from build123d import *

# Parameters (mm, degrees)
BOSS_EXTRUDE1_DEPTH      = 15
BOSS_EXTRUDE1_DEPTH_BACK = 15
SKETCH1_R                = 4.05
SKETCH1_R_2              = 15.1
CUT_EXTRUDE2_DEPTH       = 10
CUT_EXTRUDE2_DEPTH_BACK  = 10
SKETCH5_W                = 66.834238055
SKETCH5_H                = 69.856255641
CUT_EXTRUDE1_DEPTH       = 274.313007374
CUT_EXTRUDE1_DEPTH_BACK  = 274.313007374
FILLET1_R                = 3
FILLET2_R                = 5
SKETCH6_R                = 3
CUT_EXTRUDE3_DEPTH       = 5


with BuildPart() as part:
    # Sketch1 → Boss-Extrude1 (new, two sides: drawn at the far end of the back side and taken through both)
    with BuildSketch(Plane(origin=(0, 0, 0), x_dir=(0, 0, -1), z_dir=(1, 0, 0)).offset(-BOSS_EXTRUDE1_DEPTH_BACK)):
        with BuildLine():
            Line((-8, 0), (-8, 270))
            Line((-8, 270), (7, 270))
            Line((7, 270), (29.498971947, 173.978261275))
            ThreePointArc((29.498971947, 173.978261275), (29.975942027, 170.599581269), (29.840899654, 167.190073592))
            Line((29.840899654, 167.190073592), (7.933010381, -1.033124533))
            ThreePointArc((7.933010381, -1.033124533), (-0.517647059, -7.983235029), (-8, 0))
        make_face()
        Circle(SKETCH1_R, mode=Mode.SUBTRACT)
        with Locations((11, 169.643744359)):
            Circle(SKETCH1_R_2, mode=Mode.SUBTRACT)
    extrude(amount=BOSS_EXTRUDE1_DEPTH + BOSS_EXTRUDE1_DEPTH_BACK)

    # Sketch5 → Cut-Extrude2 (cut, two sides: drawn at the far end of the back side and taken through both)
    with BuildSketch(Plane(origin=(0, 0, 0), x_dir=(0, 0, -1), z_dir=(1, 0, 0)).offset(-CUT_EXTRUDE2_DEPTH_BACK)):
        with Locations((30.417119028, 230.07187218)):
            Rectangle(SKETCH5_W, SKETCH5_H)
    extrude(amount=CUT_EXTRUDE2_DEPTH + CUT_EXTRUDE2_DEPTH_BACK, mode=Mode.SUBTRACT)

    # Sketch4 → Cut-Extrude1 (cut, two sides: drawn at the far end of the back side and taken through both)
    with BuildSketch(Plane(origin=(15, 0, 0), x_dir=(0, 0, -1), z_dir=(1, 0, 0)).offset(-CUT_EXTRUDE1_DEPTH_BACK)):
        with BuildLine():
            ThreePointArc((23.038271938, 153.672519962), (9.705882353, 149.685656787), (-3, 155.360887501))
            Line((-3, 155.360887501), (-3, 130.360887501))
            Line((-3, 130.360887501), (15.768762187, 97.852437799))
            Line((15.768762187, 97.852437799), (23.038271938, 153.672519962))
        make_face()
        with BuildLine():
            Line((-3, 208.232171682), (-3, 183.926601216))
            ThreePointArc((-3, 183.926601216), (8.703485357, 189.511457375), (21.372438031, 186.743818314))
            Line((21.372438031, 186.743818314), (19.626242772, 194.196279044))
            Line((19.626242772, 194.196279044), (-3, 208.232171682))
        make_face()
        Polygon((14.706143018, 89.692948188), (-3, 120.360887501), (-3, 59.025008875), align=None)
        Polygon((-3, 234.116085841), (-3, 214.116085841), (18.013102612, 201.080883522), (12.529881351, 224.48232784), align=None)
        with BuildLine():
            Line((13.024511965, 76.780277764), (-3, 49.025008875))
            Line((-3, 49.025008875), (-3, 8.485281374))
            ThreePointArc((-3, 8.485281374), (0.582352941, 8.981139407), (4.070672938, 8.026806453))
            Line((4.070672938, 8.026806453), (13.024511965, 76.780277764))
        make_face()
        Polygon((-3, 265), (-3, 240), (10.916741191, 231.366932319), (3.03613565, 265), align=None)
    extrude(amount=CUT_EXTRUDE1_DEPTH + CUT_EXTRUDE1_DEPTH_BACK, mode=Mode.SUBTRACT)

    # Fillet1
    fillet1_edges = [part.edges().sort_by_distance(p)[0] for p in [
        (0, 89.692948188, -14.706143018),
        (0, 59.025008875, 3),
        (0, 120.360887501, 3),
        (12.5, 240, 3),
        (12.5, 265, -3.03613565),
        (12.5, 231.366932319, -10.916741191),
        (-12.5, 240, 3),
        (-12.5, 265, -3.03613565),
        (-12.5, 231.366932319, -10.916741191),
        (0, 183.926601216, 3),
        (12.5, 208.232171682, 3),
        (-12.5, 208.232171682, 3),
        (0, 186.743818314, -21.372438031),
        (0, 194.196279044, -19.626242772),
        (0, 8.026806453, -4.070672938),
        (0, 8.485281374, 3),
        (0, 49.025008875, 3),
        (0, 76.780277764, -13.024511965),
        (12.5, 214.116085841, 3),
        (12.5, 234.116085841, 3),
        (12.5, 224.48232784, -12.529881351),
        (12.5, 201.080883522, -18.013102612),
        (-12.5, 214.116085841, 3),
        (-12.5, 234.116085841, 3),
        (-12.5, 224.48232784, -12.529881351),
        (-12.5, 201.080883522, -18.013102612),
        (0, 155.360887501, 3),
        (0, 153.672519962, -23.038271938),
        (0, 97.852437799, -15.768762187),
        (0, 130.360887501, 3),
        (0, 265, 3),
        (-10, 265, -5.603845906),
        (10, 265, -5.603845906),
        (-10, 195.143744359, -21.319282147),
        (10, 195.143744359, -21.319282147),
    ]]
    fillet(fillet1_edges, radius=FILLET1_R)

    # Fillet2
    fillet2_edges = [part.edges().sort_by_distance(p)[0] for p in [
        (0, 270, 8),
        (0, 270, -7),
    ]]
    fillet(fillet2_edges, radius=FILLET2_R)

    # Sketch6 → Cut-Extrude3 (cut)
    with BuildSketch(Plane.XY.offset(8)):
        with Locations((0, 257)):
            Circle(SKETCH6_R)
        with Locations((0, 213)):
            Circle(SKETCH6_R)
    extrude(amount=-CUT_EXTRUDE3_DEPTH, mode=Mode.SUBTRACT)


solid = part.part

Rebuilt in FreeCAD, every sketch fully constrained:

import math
import FreeCAD as App
import Part
import Sketcher
from FreeCAD import Vector
Q = App.Units.Quantity


def edges_at(feature, points):
    """Names of the edges that pass closest to the given points."""
    edges = feature.Shape.Edges
    near = lambda p: min(range(len(edges)), key=lambda i: edges[i].distToShape(Part.Vertex(*p))[0])
    return sorted({f"Edge{near(p) + 1}" for p in points})

doc = App.newDocument("Part")
body = doc.addObject("PartDesign::Body", "Body")

# Sketch on YZ plane
sketch1 = body.newObject("Sketcher::SketchObject", "Sketch")
sketch1.AttachmentSupport = (doc.getObject("YZ_Plane"), [""])
sketch1.MapMode = "FlatFace"
sketch1.addGeometry([
    Part.LineSegment(Vector(270, 8, 0), Vector(0, 8, 0)),  # 0
    Part.ArcOfCircle(Part.Circle(Vector(0, 0, 0), Vector(0, 0, 1), 8), math.radians(90), math.radians(262.580068)),  # 1
    Part.LineSegment(Vector(-1.033125, -7.93301, 0), Vector(167.190074, -29.8409, 0)),  # 2
    Part.ArcOfCircle(Part.Circle(Vector(169.643744, -11, 0), Vector(0, 0, 1), 19), math.radians(-97.419932), math.radians(-76.812853)),  # 3
    Part.LineSegment(Vector(173.978261, -29.498972, 0), Vector(270, -7, 0)),  # 4
    Part.LineSegment(Vector(270, -7, 0), Vector(270, 8, 0)),  # 5
    Part.Circle(Vector(0, 0, 0), Vector(0, 0, 1), 4.05),  # 6
    Part.Circle(Vector(169.643744, -11, 0), Vector(0, 0, 1), 15.1),  # 7
], False)
sketch1.addConstraint([
    Sketcher.Constraint("Tangent", 0, 2, 1, 1),
    Sketcher.Constraint("Tangent", 1, 2, 2, 1),
    Sketcher.Constraint("Tangent", 2, 2, 3, 1),
    Sketcher.Constraint("Tangent", 3, 2, 4, 1),
    Sketcher.Constraint("Coincident", 4, 2, 5, 1),
    Sketcher.Constraint("Coincident", 5, 2, 0, 1),
    Sketcher.Constraint("Horizontal", 0),
    Sketcher.Constraint("Vertical", 5),
    Sketcher.Constraint("Coincident", 1, 3, -1, 1),
    Sketcher.Constraint("Coincident", 6, 3, -1, 1),
    Sketcher.Constraint("Coincident", 7, 3, 3, 3),
    Sketcher.Constraint("Radius", 1, Q("8 mm")),
    Sketcher.Constraint("Radius", 3, Q("19 mm")),
    Sketcher.Constraint("Diameter", 6, Q("8.1 mm")),
    Sketcher.Constraint("Diameter", 7, Q("30.2 mm")),
    Sketcher.Constraint("DistanceX", 0, 2, 0, 1, Q("270 mm")),
    Sketcher.Constraint("DistanceY", 5, 1, 5, 2, Q("15 mm")),
    Sketcher.Constraint("DistanceY", 3, 3, -1, 1, Q("11 mm")),
    Sketcher.Constraint("Distance", 4, Q("98.622401 mm")),
])
pad1 = body.newObject("PartDesign::Pad", "Pad")
pad1.Profile = sketch1
pad1.Type = "TwoLengths"
pad1.Length = 15
pad1.Length2 = 15

# Sketch on YZ plane
sketch2 = body.newObject("Sketcher::SketchObject", "Sketch001")
sketch2.AttachmentSupport = (doc.getObject("YZ_Plane"), [""])
sketch2.MapMode = "FlatFace"
sketch2.addGeometry([
    Part.LineSegment(Vector(265, 3, 0), Vector(195.143744, 3, 0)),
    Part.LineSegment(Vector(195.143744, 3, 0), Vector(195.143744, -63.834238, 0)),
    Part.LineSegment(Vector(195.143744, -63.834238, 0), Vector(265, -63.834238, 0)),
    Part.LineSegment(Vector(265, -63.834238, 0), Vector(265, 3, 0)),
], False)
sketch2.addConstraint([
    Sketcher.Constraint("Coincident", 0, 2, 1, 1),
    Sketcher.Constraint("Coincident", 1, 2, 2, 1),
    Sketcher.Constraint("Coincident", 2, 2, 3, 1),
    Sketcher.Constraint("Coincident", 3, 2, 0, 1),
    Sketcher.Constraint("Horizontal", 0),
    Sketcher.Constraint("Vertical", 1),
    Sketcher.Constraint("Horizontal", 2),
    Sketcher.Constraint("Vertical", 3),
    Sketcher.Constraint("DistanceY", -1, 1, 0, 2, Q("3 mm")),
    Sketcher.Constraint("DistanceX", -1, 1, 2, 2, Q("265 mm")),
    Sketcher.Constraint("DistanceY", 1, 2, 1, 1, Q("66.834238 mm")),
    Sketcher.Constraint("DistanceX", 0, 2, 0, 1, Q("69.856256 mm")),
])
pocket1 = body.newObject("PartDesign::Pocket", "Pocket")
pocket1.Profile = sketch2
pocket1.Type = "TwoLengths"
pocket1.Length = 10
pocket1.Length2 = 10
pocket1.Reversed = True

# Sketch on YZ plane
sketch3 = body.newObject("Sketcher::SketchObject", "Sketch002")
sketch3.AttachmentSupport = (doc.getObject("YZ_Plane"), [""])
sketch3.MapMode = "FlatFace"
sketch3.AttachmentOffset = App.Placement(Vector(0, 0, 15), App.Rotation())
sketch3.addGeometry([
    Part.ArcOfCircle(Part.Circle(Vector(169.643744, -11, 0), Vector(0, 0, 1), 20), math.radians(135.572996), math.radians(217.007072)),  # 0
    Part.LineSegment(Vector(155.360888, 3, 0), Vector(130.360888, 3, 0)),  # 1
    Part.LineSegment(Vector(130.360888, 3, 0), Vector(97.852438, -15.768762, 0)),  # 2
    Part.LineSegment(Vector(97.852438, -15.768762, 0), Vector(153.67252, -23.038272, 0)),  # 3
    Part.LineSegment(Vector(208.232172, 3, 0), Vector(183.926601, 3, 0)),  # 4
    Part.ArcOfCircle(Part.Circle(Vector(169.643744, -11, 0), Vector(0, 0, 1), 20), math.radians(-31.239857), math.radians(44.427004)),  # 5
    Part.LineSegment(Vector(186.743818, -21.372438, 0), Vector(194.196279, -19.626243, 0)),  # 6
    Part.LineSegment(Vector(194.196279, -19.626243, 0), Vector(208.232172, 3, 0)),  # 7
    Part.LineSegment(Vector(89.692948, -14.706143, 0), Vector(120.360888, 3, 0)),  # 8
    Part.LineSegment(Vector(120.360888, 3, 0), Vector(59.025009, 3, 0)),  # 9
    Part.LineSegment(Vector(59.025009, 3, 0), Vector(89.692948, -14.706143, 0)),  # 10
    Part.LineSegment(Vector(234.116086, 3, 0), Vector(214.116086, 3, 0)),  # 11
    Part.LineSegment(Vector(214.116086, 3, 0), Vector(201.080884, -18.013103, 0)),  # 12
    Part.LineSegment(Vector(201.080884, -18.013103, 0), Vector(224.482328, -12.529881, 0)),  # 13
    Part.LineSegment(Vector(224.482328, -12.529881, 0), Vector(234.116086, 3, 0)),  # 14
    Part.LineSegment(Vector(76.780278, -13.024512, 0), Vector(49.025009, 3, 0)),  # 15
    Part.LineSegment(Vector(49.025009, 3, 0), Vector(8.485281, 3, 0)),  # 16
    Part.ArcOfCircle(Part.Circle(Vector(0, 0, 0), Vector(0, 0, 1), 9), math.radians(-26.891152), math.radians(19.471221)),  # 17
    Part.LineSegment(Vector(8.026806, -4.070673, 0), Vector(76.780278, -13.024512, 0)),  # 18
    Part.LineSegment(Vector(265, 3, 0), Vector(240, 3, 0)),  # 19
    Part.LineSegment(Vector(240, 3, 0), Vector(231.366932, -10.916741, 0)),  # 20
    Part.LineSegment(Vector(231.366932, -10.916741, 0), Vector(265, -3.036136, 0)),  # 21
    Part.LineSegment(Vector(265, -3.036136, 0), Vector(265, 3, 0)),  # 22
], False)
sketch3.addConstraint([
    Sketcher.Constraint("Coincident", 0, 1, 1, 1),
    Sketcher.Constraint("Coincident", 1, 2, 2, 1),
    Sketcher.Constraint("Coincident", 2, 2, 3, 1),
    Sketcher.Constraint("Coincident", 3, 2, 0, 2),
    Sketcher.Constraint("Coincident", 4, 2, 5, 2),
    Sketcher.Constraint("Coincident", 5, 1, 6, 1),
    Sketcher.Constraint("Coincident", 6, 2, 7, 1),
    Sketcher.Constraint("Coincident", 7, 2, 4, 1),
    Sketcher.Constraint("Coincident", 8, 2, 9, 1),
    Sketcher.Constraint("Coincident", 9, 2, 10, 1),
    Sketcher.Constraint("Coincident", 10, 2, 8, 1),
    Sketcher.Constraint("Coincident", 11, 2, 12, 1),
    Sketcher.Constraint("Coincident", 12, 2, 13, 1),
    Sketcher.Constraint("Coincident", 13, 2, 14, 1),
    Sketcher.Constraint("Coincident", 14, 2, 11, 1),
    Sketcher.Constraint("Coincident", 15, 2, 16, 1),
    Sketcher.Constraint("Coincident", 16, 2, 17, 2),
    Sketcher.Constraint("Coincident", 17, 1, 18, 1),
    Sketcher.Constraint("Coincident", 18, 2, 15, 1),
    Sketcher.Constraint("Coincident", 19, 2, 20, 1),
    Sketcher.Constraint("Coincident", 20, 2, 21, 1),
    Sketcher.Constraint("Coincident", 21, 2, 22, 1),
    Sketcher.Constraint("Coincident", 22, 2, 19, 1),
    Sketcher.Constraint("Horizontal", 1),
    Sketcher.Constraint("Horizontal", 4),
    Sketcher.Constraint("Horizontal", 9),
    Sketcher.Constraint("Horizontal", 11),
    Sketcher.Constraint("Horizontal", 16),
    Sketcher.Constraint("Horizontal", 19),
    Sketcher.Constraint("Vertical", 22),
    Sketcher.Constraint("Coincident", 17, 3, -1, 1),
    Sketcher.Constraint("Coincident", 5, 3, 0, 3),
    Sketcher.Constraint("Equal", 0, 5),
    Sketcher.Constraint("Parallel", 2, 8),
    Sketcher.Constraint("Parallel", 7, 12),
    Sketcher.Constraint("Parallel", 6, 13),
    Sketcher.Constraint("Parallel", 12, 14),
    Sketcher.Constraint("Parallel", 10, 15),
    Sketcher.Constraint("Parallel", 3, 18),
    Sketcher.Constraint("Parallel", 14, 20),
    Sketcher.Constraint("Parallel", 13, 21),
    Sketcher.Constraint("Horizontal", 1, 2, 4, 2),
    Sketcher.Constraint("Horizontal", 7, 2, 8, 2),
    Sketcher.Constraint("Horizontal", 9, 2, 11, 2),
    Sketcher.Constraint("Horizontal", 14, 2, 15, 2),
    Sketcher.Constraint("Horizontal", 16, 2, 19, 2),
    Sketcher.Constraint("Equal", 1, 19),
    Sketcher.Constraint("Equal", 8, 10),
    Sketcher.Constraint("Radius", 0, Q("20 mm")),
    Sketcher.Constraint("Radius", 17, Q("9 mm")),
    Sketcher.Constraint("DistanceX", 1, 2, 1, 1, Q("25 mm")),
    Sketcher.Constraint("DistanceX", 11, 2, 11, 1, Q("20 mm")),
    Sketcher.Constraint("Angle", 2, Q("-150 deg")),
    Sketcher.Constraint("DistanceY", 0, 3, -1, 1, Q("11 mm")),
    Sketcher.Constraint("DistanceY", -1, 1, 0, 1, Q("3 mm")),
    Sketcher.Constraint("DistanceX", -1, 1, 19, 2, Q("240 mm")),
    Sketcher.Constraint("DistanceX", 8, 2, 1, 2, Q("10 mm")),
    Sketcher.Constraint("DistanceX", 15, 2, 9, 2, Q("10 mm")),
    Sketcher.Constraint("DistanceX", 4, 2, 4, 1, Q("24.30557 mm")),
    Sketcher.Constraint("DistanceX", 9, 2, 9, 1, Q("61.335879 mm")),
    Sketcher.Constraint("DistanceX", -1, 1, 4, 2, Q("183.926601 mm")),
    Sketcher.Constraint("DistanceX", 3, 2, 5, 1, Q("33.071298 mm")),
    Sketcher.Constraint("Distance", 3, Q("56.29145 mm")),
    Sketcher.Constraint("Distance", 12, Q("24.727858 mm")),
    Sketcher.Constraint("Distance", 13, Q("24.035251 mm")),
    Sketcher.Constraint("Distance", 21, Q("34.543989 mm")),
    Sketcher.Constraint("DistanceY", 22, 1, 22, 2, Q("6.036136 mm")),
    Sketcher.Constraint("DistanceX", -1, 1, 3, 2, Q("153.67252 mm")),
    Sketcher.Constraint("DistanceY", 18, 2, -1, 1, Q("13.024512 mm")),
    Sketcher.Constraint("DistanceX", 5, 3, 11, 2, Q("44.472341 mm")),
])
pocket2 = body.newObject("PartDesign::Pocket", "Pocket001")
pocket2.Profile = sketch3
pocket2.Type = "ThroughAll"
pocket2.Midplane = True
doc.recompute()

fillet = body.newObject("PartDesign::Fillet", "Fillet")
fillet.Base = (pocket2, edges_at(pocket2, [
    (0, 89.693, -14.706),
    (0, 59.025, 3),
    (0, 120.361, 3),
    (12.5, 240, 3),
    (12.5, 265, -3.036),
    (12.5, 231.367, -10.917),
    (-12.5, 240, 3),
    (-12.5, 265, -3.036),
    (-12.5, 231.367, -10.917),
    (0, 183.927, 3),
    (12.5, 208.232, 3),
    (-12.5, 208.232, 3),
    (0, 186.744, -21.372),
    (0, 194.196, -19.626),
    (0, 8.027, -4.071),
    (0, 8.485, 3),
    (0, 49.025, 3),
    (0, 76.78, -13.025),
    (12.5, 214.116, 3),
    (12.5, 234.116, 3),
    (12.5, 224.482, -12.53),
    (12.5, 201.081, -18.013),
    (-12.5, 214.116, 3),
    (-12.5, 234.116, 3),
    (-12.5, 224.482, -12.53),
    (-12.5, 201.081, -18.013),
    (0, 155.361, 3),
    (0, 153.673, -23.038),
    (0, 97.852, -15.769),
    (0, 130.361, 3),
    (0, 265, 3),
    (-10, 265, -5.604),
    (10, 265, -5.604),
    (-10, 195.144, -21.319),
    (10, 195.144, -21.319),
]))
fillet.Radius = 3
doc.recompute()

fillet2 = body.newObject("PartDesign::Fillet", "Fillet001")
fillet2.Base = (fillet, edges_at(fillet, [(0, 270, 8), (0, 270, -7)]))
fillet2.Radius = 5

# Sketch on XY plane
sketch4 = body.newObject("Sketcher::SketchObject", "Sketch003")
sketch4.AttachmentSupport = (doc.getObject("XY_Plane"), [""])
sketch4.MapMode = "FlatFace"
sketch4.AttachmentOffset = App.Placement(Vector(0, 0, 8), App.Rotation())
sketch4.addGeometry([
    Part.Circle(Vector(0, 257, 0), Vector(0, 0, 1), 3),
    Part.Circle(Vector(0, 213, 0), Vector(0, 0, 1), 3),
], False)
sketch4.addConstraint([
    Sketcher.Constraint("Equal", 0, 1),
    Sketcher.Constraint("PointOnObject", 0, 3, -2),
    Sketcher.Constraint("PointOnObject", 1, 3, -2),
    Sketcher.Constraint("Diameter", 0, Q("6 mm")),
    Sketcher.Constraint("DistanceY", -1, 1, 0, 3, Q("257 mm")),
    Sketcher.Constraint("DistanceY", -1, 1, 1, 3, Q("213 mm")),
])
pocket3 = body.newObject("PartDesign::Pocket", "Pocket002")
pocket3.Profile = sketch4
pocket3.Length = 5

doc.recompute()
